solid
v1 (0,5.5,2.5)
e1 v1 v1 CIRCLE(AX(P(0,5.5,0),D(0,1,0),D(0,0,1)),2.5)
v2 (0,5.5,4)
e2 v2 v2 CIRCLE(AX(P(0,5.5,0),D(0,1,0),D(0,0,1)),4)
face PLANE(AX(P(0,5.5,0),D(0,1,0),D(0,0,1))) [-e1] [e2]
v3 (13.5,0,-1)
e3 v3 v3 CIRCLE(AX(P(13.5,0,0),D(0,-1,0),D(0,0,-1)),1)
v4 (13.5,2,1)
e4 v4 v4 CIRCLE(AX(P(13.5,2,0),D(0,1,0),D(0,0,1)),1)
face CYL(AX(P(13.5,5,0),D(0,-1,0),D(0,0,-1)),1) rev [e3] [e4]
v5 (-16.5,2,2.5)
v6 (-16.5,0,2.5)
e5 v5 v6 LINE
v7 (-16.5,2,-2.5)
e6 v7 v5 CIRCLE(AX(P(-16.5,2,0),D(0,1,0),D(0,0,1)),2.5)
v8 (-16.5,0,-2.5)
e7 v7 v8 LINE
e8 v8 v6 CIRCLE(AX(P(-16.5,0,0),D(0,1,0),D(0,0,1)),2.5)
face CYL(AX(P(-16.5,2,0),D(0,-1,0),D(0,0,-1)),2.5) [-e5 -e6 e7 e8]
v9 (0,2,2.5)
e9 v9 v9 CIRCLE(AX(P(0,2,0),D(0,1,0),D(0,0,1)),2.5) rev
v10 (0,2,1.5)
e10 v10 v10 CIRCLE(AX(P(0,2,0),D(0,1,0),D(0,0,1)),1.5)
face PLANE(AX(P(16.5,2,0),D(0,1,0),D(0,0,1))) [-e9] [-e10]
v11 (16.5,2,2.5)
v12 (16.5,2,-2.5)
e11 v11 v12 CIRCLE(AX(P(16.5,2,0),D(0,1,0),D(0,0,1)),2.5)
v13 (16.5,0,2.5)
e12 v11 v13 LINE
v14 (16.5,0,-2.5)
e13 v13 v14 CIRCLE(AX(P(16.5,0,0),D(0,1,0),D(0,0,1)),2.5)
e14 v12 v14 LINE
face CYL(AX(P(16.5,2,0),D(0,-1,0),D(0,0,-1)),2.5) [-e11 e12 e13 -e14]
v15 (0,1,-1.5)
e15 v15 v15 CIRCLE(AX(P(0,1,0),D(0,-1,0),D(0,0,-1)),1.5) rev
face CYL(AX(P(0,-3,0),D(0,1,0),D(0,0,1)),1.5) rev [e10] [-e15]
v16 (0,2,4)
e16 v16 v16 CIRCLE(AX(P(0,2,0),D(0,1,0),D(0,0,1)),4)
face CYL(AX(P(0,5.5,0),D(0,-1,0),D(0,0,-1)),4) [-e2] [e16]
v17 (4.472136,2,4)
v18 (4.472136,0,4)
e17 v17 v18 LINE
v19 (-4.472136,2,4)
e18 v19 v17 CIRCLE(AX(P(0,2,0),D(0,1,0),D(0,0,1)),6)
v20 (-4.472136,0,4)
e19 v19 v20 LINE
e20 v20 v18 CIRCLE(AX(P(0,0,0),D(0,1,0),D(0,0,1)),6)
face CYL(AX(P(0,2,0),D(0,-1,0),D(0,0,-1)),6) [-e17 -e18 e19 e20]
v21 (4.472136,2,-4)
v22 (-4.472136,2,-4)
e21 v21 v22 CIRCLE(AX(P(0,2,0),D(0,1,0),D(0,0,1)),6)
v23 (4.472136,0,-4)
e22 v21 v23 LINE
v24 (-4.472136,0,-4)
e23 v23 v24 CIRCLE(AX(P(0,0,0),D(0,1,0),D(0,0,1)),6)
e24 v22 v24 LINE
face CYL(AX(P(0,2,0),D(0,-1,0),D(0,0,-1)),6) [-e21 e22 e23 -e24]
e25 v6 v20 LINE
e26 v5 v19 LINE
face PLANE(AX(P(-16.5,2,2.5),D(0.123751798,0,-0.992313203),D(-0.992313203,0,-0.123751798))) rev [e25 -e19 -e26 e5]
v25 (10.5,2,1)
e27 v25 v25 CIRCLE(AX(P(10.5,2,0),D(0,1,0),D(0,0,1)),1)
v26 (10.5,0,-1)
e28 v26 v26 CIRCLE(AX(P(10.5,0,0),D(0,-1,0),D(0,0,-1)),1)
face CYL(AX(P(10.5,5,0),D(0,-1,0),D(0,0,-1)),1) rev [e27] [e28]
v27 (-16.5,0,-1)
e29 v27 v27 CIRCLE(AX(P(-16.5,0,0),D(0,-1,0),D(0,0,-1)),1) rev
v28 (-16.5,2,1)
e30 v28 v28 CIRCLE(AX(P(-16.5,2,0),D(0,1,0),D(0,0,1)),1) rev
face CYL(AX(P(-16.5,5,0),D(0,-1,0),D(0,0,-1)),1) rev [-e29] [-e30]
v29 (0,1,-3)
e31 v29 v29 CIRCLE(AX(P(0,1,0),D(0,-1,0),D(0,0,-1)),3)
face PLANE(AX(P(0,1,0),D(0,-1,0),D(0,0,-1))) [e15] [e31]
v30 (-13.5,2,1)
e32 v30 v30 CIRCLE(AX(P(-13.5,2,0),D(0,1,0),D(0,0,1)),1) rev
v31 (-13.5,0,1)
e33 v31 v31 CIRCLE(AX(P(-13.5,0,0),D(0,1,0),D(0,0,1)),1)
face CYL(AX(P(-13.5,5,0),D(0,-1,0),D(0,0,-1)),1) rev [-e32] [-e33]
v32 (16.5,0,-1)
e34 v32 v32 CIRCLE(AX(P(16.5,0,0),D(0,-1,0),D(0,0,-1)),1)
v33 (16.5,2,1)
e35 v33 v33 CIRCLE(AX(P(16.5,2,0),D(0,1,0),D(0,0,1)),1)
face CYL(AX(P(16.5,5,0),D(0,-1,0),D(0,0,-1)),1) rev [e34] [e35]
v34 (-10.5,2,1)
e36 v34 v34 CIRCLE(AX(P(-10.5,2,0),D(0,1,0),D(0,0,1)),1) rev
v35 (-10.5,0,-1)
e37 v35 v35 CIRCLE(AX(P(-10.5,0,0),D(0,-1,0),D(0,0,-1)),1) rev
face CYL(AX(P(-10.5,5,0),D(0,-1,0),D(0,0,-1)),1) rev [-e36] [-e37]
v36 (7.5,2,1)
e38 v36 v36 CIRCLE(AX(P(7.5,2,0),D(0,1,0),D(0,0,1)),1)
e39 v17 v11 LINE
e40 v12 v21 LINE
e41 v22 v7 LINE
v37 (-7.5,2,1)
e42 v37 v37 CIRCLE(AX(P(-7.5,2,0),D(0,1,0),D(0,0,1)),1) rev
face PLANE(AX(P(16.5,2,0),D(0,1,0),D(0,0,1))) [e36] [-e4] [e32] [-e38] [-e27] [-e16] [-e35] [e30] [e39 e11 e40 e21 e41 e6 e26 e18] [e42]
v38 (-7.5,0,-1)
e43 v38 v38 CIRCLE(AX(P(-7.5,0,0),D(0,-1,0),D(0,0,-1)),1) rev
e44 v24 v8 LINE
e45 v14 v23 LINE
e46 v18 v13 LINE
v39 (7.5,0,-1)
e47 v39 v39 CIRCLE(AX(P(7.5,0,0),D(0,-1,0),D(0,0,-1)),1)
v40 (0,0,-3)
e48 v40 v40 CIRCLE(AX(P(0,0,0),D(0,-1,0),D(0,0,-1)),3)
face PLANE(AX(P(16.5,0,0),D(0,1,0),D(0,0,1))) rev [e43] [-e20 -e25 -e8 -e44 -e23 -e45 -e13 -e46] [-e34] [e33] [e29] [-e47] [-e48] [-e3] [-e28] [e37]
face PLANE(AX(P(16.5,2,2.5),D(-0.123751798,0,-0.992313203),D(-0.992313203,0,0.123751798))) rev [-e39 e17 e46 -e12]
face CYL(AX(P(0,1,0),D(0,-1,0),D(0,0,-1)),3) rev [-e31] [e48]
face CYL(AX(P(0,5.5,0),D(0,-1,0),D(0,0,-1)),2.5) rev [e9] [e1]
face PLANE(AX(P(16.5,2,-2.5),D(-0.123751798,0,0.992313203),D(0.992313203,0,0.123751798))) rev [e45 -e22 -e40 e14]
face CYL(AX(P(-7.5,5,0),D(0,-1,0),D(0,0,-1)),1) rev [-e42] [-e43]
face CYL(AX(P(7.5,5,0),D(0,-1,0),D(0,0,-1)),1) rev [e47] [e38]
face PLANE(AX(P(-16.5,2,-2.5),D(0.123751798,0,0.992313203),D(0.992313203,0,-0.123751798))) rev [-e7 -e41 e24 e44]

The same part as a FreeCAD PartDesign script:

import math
import FreeCAD as App
import Part
import Sketcher
from FreeCAD import Vector

doc = App.newDocument("Part")
body = doc.addObject("PartDesign::Body", "Body")

sketch1 = body.newObject("Sketcher::SketchObject", "Sketch")
sketch1.AttachmentSupport = (doc.getObject("XZ_Plane"), [""])
sketch1.MapMode = "FlatFace"
sketch1.addGeometry([
    Part.LineSegment(Vector(-4.5, -4, 0), Vector(-16.5, -2.5, 0)),
    Part.ArcOfCircle(Part.Circle(Vector(-16.5, 0, 0), Vector(0, 0, 1), 2.5), math.radians(90), math.radians(270)),
    Part.LineSegment(Vector(-16.5, 2.5, 0), Vector(-4.5, 4, 0)),
    Part.ArcOfCircle(Part.Circle(Vector(0, 0, 0), Vector(0, 0, 1), 6), math.radians(42), math.radians(138)),
    Part.LineSegment(Vector(4.5, 4, 0), Vector(16.5, 2.5, 0)),
    Part.ArcOfCircle(Part.Circle(Vector(16.5, 0, 0), Vector(0, 0, 1), 2.5), math.radians(-90), math.radians(90)),
    Part.LineSegment(Vector(16.5, -2.5, 0), Vector(4.5, -4, 0)),
    Part.ArcOfCircle(Part.Circle(Vector(0, 0, 0), Vector(0, 0, 1), 6), math.radians(-138), math.radians(-42)),
], False)
sketch1.addConstraint([
    Sketcher.Constraint("Coincident", 0, 2, 1, 2),
    Sketcher.Constraint("Coincident", 1, 1, 2, 1),
    Sketcher.Constraint("Coincident", 2, 2, 3, 2),
    Sketcher.Constraint("Coincident", 3, 1, 4, 1),
    Sketcher.Constraint("Coincident", 4, 2, 5, 2),
    Sketcher.Constraint("Coincident", 5, 1, 6, 1),
    Sketcher.Constraint("Coincident", 6, 2, 7, 2),
    Sketcher.Constraint("Coincident", 7, 1, 0, 1),
    Sketcher.Constraint("Coincident", 3, 3, -1, 1),
    Sketcher.Constraint("Coincident", 7, 3, -1, 1),
    Sketcher.Constraint("Equal", 1, 5),
    Sketcher.Constraint("Equal", 3, 7),
    Sketcher.Constraint("Symmetric", 1, 3, 5, 3, -1, 1),
    Sketcher.Constraint("Symmetric", 1, 1, 4, 2, -2),
    Sketcher.Constraint("Parallel", 0, 4),
    Sketcher.Constraint("Parallel", 2, 6),
    Sketcher.Constraint("Horizontal", 2, 2, 3, 1),
    Sketcher.Constraint("Horizontal", 6, 2, 7, 1),
    Sketcher.Constraint("Vertical", 1, 3, 0, 2),
    Sketcher.Constraint("Vertical", 0, 2, 1, 1),
    Sketcher.Constraint("Radius", 3, 6.0),
    Sketcher.Constraint("Radius", 1, 2.5),
    Sketcher.Constraint("DistanceY", -1, 1, 2, 2, 4.0),
    Sketcher.Constraint("DistanceX", 1, 3, 5, 3, 33.0),
])
pad1 = body.newObject("PartDesign::Pad", "Pad")
pad1.Profile = sketch1
pad1.Length = 2
pad1.Reversed = True

sketch2 = body.newObject("Sketcher::SketchObject", "Sketch001")
sketch2.AttachmentSupport = (doc.getObject("XZ_Plane"), [""])
sketch2.MapMode = "FlatFace"
sketch2.AttachmentOffset = App.Placement(Vector(0, 0, -2), App.Rotation())
sketch2.addGeometry([
    Part.Circle(Vector(0, 0, 0), Vector(0, 0, 1), 4),
    Part.Circle(Vector(0, 0, 0), Vector(0, 0, 1), 2.5),
], False)
sketch2.addConstraint([
    Sketcher.Constraint("Coincident", 0, 3, -1, 1),
    Sketcher.Constraint("Coincident", 1, 3, -1, 1),
    Sketcher.Constraint("Diameter", 0, 8.0),
    Sketcher.Constraint("Diameter", 1, 5.0),
])
pad2 = body.newObject("PartDesign::Pad", "Pad001")
pad2.Profile = sketch2
pad2.Length = 3.5
pad2.Reversed = True

sketch3 = body.newObject("Sketcher::SketchObject", "Sketch002")
sketch3.AttachmentSupport = (doc.getObject("XZ_Plane"), [""])
sketch3.MapMode = "FlatFace"
sketch3.AttachmentOffset = App.Placement(Vector(0, 0, -2), App.Rotation())
sketch3.addGeometry(Part.Circle(Vector(0, 0, 0), Vector(0, 0, 1), 1.5), False)
sketch3.addConstraint([
    Sketcher.Constraint("Coincident", 0, 3, -1, 1),
    Sketcher.Constraint("Diameter", 0, 3.0),
])
pocket1 = body.newObject("PartDesign::Pocket", "Pocket")
pocket1.Profile = sketch3
pocket1.Length = 5
pocket1.Reversed = True

sketch4 = body.newObject("Sketcher::SketchObject", "Sketch003")
sketch4.AttachmentSupport = (doc.getObject("XZ_Plane"), [""])
sketch4.MapMode = "FlatFace"
sketch4.addGeometry(Part.Circle(Vector(0, 0, 0), Vector(0, 0, 1), 3), False)
sketch4.addConstraint([
    Sketcher.Constraint("Coincident", 0, 3, -1, 1),
    Sketcher.Constraint("Diameter", 0, 6.0),
])
pocket2 = body.newObject("PartDesign::Pocket", "Pocket001")
pocket2.Profile = sketch4
pocket2.Length = 1

sketch5 = body.newObject("Sketcher::SketchObject", "Sketch004")
sketch5.AttachmentSupport = (doc.getObject("XZ_Plane"), [""])
sketch5.MapMode = "FlatFace"
sketch5.addGeometry([
    Part.Circle(Vector(-16.5, 0, 0), Vector(0, 0, 1), 1),
    Part.Circle(Vector(-10.5, 0, 0), Vector(0, 0, 1), 1),
    Part.Circle(Vector(-7.5, 0, 0), Vector(0, 0, 1), 1),
    Part.Circle(Vector(7.5, 0, 0), Vector(0, 0, 1), 1),
    Part.Circle(Vector(10.5, 0, 0), Vector(0, 0, 1), 1),
    Part.Circle(Vector(13.5, 0, 0), Vector(0, 0, 1), 1),
    Part.Circle(Vector(16.5, 0, 0), Vector(0, 0, 1), 1),
    Part.Circle(Vector(-13.5, 0, 0), Vector(0, 0, 1), 1),
], False)
sketch5.addConstraint([
    Sketcher.Constraint("Equal", 0, 1),
    Sketcher.Constraint("Equal", 1, 2),
    Sketcher.Constraint("Equal", 2, 3),
    Sketcher.Constraint("Equal", 3, 4),
    Sketcher.Constraint("Equal", 4, 5),
    Sketcher.Constraint("Equal", 5, 6),
    Sketcher.Constraint("Equal", 6, 7),
    Sketcher.Constraint("Symmetric", 2, 3, 3, 3, -1, 1),
    Sketcher.Constraint("Symmetric", 1, 3, 4, 3, -1, 1),
    Sketcher.Constraint("Symmetric", 0, 3, 6, 3, -1, 1),
    Sketcher.Constraint("Symmetric", 5, 3, 7, 3, -1, 1),
    Sketcher.Constraint("PointOnObject", 0, 3, -1),
    Sketcher.Constraint("PointOnObject", 1, 3, -1),
    Sketcher.Constraint("PointOnObject", 2, 3, -1),
    Sketcher.Constraint("PointOnObject", 5, 3, -1),
    Sketcher.Constraint("Diameter", 0, 2.0),
    Sketcher.Constraint("DistanceX", 0, 3, 1, 3, 6.0),
    Sketcher.Constraint("DistanceX", 1, 3, 2, 3, 3.0),
    Sketcher.Constraint("DistanceX", 2, 3, 3, 3, 15.0),
    Sketcher.Constraint("DistanceX", 4, 3, 5, 3, 3.0),
])
pocket3 = body.newObject("PartDesign::Pocket", "Pocket002")
pocket3.Profile = sketch5
pocket3.Length = 5

doc.recompute()
